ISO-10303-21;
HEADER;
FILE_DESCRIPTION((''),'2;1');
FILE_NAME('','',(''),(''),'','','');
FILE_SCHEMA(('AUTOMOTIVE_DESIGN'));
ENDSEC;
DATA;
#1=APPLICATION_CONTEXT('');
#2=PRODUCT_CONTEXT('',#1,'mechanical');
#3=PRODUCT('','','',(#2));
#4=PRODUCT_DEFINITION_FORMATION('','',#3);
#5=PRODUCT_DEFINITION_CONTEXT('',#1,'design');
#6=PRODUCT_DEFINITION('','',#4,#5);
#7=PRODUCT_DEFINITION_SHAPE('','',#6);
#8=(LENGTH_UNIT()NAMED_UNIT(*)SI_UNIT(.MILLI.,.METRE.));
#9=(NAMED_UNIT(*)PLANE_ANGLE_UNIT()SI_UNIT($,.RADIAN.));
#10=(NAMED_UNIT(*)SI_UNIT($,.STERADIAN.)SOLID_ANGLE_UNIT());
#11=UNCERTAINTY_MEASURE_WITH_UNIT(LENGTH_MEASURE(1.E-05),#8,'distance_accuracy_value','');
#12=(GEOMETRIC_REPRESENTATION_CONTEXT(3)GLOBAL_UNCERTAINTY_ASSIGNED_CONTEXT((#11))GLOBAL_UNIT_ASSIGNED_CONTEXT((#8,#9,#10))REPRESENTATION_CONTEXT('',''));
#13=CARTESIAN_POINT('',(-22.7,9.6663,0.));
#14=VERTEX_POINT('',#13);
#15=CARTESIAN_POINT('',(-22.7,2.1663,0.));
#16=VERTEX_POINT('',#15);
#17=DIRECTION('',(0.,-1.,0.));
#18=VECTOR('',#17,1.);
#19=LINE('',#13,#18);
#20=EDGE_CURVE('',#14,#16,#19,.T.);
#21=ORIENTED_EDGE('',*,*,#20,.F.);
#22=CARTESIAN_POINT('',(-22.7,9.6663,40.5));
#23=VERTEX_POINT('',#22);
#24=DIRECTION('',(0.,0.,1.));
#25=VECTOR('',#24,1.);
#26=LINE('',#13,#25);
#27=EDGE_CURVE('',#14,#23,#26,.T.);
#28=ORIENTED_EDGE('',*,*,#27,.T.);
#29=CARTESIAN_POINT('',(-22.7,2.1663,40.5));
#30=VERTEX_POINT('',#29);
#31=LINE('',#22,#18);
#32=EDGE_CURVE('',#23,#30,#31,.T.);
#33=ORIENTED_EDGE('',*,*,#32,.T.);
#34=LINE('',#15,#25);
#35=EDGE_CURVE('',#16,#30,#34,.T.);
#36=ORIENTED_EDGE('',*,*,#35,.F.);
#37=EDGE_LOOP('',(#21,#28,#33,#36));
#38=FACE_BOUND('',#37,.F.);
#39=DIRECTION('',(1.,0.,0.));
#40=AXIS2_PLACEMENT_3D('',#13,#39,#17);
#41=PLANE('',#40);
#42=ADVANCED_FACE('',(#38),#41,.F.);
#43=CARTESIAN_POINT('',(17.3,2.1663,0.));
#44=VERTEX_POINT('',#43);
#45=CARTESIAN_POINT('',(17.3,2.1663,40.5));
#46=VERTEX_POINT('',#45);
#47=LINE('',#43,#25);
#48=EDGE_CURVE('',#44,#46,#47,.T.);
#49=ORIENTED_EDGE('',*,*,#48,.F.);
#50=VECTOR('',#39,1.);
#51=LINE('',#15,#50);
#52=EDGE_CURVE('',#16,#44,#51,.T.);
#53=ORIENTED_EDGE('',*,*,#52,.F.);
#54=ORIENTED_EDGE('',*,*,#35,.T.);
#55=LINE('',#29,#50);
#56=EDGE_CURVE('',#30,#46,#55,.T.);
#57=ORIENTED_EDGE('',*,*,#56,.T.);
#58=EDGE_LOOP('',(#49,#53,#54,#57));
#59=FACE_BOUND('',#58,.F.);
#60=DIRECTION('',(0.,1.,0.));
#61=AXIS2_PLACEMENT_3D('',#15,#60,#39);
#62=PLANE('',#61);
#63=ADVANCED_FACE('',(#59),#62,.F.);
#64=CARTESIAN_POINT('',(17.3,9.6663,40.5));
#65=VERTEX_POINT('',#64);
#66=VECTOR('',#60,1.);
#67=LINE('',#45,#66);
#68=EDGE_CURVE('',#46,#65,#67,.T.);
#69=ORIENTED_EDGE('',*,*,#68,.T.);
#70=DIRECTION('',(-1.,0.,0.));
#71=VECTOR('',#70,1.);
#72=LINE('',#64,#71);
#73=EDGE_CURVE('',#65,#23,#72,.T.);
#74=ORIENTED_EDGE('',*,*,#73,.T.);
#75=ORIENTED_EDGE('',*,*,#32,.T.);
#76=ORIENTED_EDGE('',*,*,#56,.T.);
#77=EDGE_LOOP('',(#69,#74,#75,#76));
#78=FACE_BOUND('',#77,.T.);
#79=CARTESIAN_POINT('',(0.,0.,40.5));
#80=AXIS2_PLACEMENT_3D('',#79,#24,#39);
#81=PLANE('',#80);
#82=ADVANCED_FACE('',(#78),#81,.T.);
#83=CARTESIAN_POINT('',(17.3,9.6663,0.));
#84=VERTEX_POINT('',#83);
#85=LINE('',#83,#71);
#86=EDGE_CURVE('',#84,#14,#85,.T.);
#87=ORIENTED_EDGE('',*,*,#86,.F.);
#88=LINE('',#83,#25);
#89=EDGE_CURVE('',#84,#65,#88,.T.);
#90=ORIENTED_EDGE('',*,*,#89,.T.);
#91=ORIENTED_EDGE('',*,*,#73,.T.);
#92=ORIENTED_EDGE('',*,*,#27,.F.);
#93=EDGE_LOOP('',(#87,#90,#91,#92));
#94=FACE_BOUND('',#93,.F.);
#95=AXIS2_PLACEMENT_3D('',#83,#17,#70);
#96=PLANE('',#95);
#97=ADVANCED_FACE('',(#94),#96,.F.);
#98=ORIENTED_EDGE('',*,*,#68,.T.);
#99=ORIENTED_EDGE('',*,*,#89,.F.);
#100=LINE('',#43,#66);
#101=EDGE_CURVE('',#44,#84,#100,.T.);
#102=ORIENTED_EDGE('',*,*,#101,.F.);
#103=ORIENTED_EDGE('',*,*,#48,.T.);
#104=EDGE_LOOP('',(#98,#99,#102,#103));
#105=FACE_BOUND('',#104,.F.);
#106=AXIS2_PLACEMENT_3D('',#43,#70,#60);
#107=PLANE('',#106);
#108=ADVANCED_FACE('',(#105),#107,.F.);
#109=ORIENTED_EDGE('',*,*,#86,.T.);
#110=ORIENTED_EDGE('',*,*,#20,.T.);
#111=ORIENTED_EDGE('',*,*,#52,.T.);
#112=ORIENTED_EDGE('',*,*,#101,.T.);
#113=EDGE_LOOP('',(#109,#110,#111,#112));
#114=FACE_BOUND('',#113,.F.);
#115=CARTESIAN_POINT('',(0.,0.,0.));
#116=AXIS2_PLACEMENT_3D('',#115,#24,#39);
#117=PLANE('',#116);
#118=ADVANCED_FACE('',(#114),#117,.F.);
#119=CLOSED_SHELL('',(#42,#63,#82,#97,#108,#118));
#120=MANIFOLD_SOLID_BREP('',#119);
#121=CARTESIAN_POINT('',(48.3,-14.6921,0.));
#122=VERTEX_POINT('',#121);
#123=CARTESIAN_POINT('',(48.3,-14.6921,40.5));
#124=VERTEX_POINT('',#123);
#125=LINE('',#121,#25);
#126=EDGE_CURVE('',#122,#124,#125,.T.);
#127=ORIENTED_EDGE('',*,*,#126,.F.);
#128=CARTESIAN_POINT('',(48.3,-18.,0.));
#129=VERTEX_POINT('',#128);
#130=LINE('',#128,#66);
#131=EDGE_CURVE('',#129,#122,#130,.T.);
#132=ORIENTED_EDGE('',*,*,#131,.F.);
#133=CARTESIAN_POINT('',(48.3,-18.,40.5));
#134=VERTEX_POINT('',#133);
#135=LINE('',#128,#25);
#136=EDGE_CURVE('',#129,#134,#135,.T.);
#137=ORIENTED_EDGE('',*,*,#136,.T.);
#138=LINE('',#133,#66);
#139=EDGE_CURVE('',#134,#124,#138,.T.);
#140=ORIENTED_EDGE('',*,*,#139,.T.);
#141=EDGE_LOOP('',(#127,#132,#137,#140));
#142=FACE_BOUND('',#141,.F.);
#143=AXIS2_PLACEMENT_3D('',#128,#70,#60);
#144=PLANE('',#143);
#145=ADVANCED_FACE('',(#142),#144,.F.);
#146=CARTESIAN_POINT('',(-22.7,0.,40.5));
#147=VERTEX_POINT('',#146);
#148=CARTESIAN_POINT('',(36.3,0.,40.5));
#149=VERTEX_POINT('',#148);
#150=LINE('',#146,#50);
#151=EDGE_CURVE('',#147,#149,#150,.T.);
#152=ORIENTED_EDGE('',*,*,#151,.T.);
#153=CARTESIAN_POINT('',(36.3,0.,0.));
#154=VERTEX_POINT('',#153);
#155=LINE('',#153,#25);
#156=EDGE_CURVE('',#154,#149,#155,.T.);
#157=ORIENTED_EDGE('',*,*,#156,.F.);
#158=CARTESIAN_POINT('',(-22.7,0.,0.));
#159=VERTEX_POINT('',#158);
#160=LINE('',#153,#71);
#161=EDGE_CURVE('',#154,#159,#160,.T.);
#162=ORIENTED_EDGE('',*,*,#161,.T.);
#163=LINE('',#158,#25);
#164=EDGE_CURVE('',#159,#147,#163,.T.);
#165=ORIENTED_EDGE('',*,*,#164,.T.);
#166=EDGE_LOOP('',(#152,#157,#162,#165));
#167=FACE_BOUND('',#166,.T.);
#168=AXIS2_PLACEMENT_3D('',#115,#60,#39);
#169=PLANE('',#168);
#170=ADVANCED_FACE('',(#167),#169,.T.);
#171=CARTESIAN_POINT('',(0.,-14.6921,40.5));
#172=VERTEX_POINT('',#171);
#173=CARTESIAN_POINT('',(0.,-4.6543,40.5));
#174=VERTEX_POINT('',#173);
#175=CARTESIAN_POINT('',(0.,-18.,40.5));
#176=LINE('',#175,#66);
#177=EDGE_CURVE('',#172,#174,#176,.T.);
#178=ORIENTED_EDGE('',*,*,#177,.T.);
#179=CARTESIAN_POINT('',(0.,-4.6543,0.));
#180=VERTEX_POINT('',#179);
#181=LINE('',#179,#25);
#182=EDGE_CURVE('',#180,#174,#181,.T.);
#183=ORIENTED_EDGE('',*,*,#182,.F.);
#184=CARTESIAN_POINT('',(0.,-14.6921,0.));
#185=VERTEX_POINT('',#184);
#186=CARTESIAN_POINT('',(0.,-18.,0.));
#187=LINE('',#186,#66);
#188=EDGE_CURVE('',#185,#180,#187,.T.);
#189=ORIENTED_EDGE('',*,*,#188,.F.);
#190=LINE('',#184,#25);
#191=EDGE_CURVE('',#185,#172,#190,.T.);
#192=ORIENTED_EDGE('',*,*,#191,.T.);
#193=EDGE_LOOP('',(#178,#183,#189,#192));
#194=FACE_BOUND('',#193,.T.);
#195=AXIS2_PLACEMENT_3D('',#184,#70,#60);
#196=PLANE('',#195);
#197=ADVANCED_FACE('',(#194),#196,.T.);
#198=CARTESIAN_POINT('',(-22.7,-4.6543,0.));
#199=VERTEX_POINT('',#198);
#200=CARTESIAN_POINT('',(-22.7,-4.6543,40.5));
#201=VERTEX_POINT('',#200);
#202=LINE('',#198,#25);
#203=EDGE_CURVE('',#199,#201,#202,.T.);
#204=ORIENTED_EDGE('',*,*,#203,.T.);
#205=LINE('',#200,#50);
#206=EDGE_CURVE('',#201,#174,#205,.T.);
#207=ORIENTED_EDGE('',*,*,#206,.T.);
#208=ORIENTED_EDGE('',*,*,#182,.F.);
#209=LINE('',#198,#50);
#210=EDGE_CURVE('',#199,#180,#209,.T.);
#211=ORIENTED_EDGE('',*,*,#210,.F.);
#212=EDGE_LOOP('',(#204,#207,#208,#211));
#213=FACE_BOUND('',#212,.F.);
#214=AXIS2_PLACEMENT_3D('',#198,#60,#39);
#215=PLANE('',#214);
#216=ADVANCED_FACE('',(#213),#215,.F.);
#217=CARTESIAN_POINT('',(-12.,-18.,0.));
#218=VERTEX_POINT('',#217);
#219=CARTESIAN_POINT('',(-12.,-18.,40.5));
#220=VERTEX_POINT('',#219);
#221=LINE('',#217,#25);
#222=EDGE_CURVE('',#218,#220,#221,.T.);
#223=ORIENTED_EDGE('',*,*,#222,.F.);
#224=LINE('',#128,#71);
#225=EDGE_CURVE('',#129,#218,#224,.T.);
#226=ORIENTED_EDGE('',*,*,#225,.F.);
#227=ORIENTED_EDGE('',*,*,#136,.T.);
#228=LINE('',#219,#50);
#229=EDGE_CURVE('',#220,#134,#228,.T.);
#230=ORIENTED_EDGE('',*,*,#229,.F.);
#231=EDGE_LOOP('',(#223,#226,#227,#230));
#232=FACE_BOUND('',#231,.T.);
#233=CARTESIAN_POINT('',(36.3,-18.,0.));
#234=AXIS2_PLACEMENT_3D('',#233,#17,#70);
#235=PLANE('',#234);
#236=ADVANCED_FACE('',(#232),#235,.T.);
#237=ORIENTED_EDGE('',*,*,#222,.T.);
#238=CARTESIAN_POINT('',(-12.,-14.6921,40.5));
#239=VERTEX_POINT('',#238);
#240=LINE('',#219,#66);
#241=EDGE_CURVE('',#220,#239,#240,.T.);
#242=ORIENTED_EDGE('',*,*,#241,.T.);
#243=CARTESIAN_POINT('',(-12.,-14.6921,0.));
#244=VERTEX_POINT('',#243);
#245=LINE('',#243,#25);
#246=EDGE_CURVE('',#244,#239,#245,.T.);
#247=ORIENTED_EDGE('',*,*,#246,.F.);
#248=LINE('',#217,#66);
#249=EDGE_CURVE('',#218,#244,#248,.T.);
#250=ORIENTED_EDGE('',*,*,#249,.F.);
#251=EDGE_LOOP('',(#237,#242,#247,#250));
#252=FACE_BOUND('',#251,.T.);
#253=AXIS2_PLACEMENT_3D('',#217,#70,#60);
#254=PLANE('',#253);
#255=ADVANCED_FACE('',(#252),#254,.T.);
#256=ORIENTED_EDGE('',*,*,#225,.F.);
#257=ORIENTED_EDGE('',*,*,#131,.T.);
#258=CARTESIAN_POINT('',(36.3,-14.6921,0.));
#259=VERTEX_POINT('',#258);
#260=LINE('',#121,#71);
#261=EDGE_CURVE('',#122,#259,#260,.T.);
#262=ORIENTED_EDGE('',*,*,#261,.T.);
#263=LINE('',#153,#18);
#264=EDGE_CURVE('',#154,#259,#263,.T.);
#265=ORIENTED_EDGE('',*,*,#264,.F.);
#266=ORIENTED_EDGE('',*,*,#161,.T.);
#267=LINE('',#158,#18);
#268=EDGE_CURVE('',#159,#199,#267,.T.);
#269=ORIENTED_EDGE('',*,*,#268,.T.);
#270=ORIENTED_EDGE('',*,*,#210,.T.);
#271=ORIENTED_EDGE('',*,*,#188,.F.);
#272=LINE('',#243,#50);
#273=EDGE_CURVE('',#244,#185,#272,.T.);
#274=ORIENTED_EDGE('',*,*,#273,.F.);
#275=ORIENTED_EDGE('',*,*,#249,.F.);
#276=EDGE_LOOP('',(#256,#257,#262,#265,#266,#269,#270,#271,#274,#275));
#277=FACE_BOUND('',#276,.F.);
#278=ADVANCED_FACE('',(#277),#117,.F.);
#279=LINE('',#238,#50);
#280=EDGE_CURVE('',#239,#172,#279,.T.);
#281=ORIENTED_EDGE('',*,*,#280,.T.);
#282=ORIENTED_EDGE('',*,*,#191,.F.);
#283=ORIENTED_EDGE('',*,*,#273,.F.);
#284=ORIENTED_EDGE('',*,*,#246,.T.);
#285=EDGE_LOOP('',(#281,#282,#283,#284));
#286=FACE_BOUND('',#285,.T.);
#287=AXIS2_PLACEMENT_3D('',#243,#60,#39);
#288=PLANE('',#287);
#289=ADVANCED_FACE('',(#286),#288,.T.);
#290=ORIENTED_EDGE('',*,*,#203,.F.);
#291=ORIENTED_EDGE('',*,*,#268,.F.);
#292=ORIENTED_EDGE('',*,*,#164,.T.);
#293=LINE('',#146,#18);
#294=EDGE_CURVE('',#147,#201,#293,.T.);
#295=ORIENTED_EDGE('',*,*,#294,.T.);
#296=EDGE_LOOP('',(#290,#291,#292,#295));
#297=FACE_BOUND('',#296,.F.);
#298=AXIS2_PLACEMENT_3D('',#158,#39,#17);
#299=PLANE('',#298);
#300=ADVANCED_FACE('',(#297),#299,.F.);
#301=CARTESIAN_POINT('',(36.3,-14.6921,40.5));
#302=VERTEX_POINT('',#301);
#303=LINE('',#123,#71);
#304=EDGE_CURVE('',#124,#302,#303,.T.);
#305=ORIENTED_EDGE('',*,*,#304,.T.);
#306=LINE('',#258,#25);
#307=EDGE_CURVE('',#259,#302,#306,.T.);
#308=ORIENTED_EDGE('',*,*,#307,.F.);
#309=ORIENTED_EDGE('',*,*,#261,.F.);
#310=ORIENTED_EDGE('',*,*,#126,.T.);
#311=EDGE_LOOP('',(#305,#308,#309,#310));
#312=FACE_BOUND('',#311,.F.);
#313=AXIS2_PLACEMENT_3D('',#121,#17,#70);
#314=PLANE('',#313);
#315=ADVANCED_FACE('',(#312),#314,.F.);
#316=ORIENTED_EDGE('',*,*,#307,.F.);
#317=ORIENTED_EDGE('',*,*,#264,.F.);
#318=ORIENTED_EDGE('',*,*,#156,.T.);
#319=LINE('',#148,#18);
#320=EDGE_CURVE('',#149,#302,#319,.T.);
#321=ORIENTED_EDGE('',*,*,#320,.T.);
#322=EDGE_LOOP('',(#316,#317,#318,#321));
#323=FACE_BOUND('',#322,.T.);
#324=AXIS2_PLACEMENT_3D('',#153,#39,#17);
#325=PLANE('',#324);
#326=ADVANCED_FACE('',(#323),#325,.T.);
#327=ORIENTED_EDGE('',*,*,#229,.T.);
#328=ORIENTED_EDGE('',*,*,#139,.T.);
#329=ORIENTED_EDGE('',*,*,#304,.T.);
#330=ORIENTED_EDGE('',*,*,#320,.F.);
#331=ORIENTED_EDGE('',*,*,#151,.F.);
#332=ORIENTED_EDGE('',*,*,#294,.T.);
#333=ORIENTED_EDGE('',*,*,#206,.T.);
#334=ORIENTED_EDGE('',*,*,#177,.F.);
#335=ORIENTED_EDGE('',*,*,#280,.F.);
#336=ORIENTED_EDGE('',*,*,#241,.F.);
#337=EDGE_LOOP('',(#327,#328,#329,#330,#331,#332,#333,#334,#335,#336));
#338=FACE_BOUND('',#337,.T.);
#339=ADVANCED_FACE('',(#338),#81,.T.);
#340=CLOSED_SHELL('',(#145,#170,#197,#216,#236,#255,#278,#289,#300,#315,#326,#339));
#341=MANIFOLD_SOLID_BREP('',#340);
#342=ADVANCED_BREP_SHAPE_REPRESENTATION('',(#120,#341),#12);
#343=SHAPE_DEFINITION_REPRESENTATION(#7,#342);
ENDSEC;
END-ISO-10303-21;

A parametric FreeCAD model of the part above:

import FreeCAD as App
import Part
import Sketcher
Q = App.Units.Quantity


def add_polygon(sketch, points):
    """Adds a closed chain of lines whose ends are joined by coincident constraints."""
    first, n = sketch.GeometryCount, len(points)
    for a, b in zip(points, points[1:] + points[:1]):
        sketch.addGeometry(Part.LineSegment(App.Vector(*a, 0), App.Vector(*b, 0)), False)
    for i in range(n):
        sketch.addConstraint(Sketcher.Constraint("Coincident", first + i, 2, first + (i + 1) % n, 1))

doc = App.newDocument("Part")
params = doc.addObject("Spreadsheet::Sheet", "Params")
for row, (alias, value) in enumerate([
    ("sketch1_width", "59 mm"),
    ("sketch1_width2", "40 mm"),
    ("sketch1_height", "7.5 mm"),
    ("pad1_length", "40.5 mm"),
], start=1):
    params.set(f"A{row}", alias)
    params.set(f"B{row}", "=" + value)
    params.setAlias(f"B{row}", alias)

body = doc.addObject("PartDesign::Body", "Body")
body.AllowCompound = True

# Sketch on XY plane
sketch1 = body.newObject("Sketcher::SketchObject", "Sketch")
sketch1.AttachmentSupport = (doc.getObject("XY_Plane"), [""])
sketch1.MapMode = "FlatFace"
add_polygon(sketch1, [(36.3, 0), (-22.7, 0), (-22.7, -4.7), (0, -4.7), (0, -14.7), (-12, -14.7), (-12, -18), (48.3, -18), (48.3, -14.7), (36.3, -14.7)])  # lines 0-9
add_polygon(sketch1, [(-22.7, 9.7), (-22.7, 2.2), (17.3, 2.2), (17.3, 9.7)])  # lines 10-13
sketch1.addConstraint([
    Sketcher.Constraint("Horizontal", 0),
    Sketcher.Constraint("Vertical", 1),
    Sketcher.Constraint("Horizontal", 2),
    Sketcher.Constraint("Vertical", 3),
    Sketcher.Constraint("Horizontal", 4),
    Sketcher.Constraint("Vertical", 5),
    Sketcher.Constraint("Horizontal", 6),
    Sketcher.Constraint("Vertical", 7),
    Sketcher.Constraint("Horizontal", 8),
    Sketcher.Constraint("Vertical", 9),
    Sketcher.Constraint("Vertical", 10),
    Sketcher.Constraint("Horizontal", 11),
    Sketcher.Constraint("Vertical", 12),
    Sketcher.Constraint("Horizontal", 13),
    Sketcher.Constraint("PointOnObject", 0, 2, -1),
    Sketcher.Constraint("PointOnObject", 2, 2, -2),
    Sketcher.Constraint("Horizontal", 4, 2, 7, 2),
    Sketcher.Constraint("Vertical", 1, 2, 10, 2),
    Sketcher.Constraint("Equal", 4, 8),
    Sketcher.Constraint("DistanceX", 0, 2, 0, 1, Q("59 mm")),
    Sketcher.Constraint("DistanceX", 11, 1, 11, 2, Q("40 mm")),
    Sketcher.Constraint("DistanceY", 10, 2, 10, 1, Q("7.5 mm")),
    Sketcher.Constraint("DistanceY", 5, 2, -1, 1, Q("18 mm")),
    Sketcher.Constraint("DistanceX", 1, 2, 6, 2, Q("71 mm")),
    Sketcher.Constraint("DistanceX", -1, 1, 8, 2, Q("36.3 mm")),
    Sketcher.Constraint("DistanceY", 5, 2, 5, 1, Q("3.308 mm")),
    Sketcher.Constraint("DistanceY", 1, 2, 1, 1, Q("4.6543 mm")),
    Sketcher.Constraint("DistanceY", -1, 1, 10, 2, Q("2.1663 mm")),
])
sketch1.setExpression("Constraints[33]", "Params.sketch1_width")
sketch1.setExpression("Constraints[34]", "Params.sketch1_width2")
sketch1.setExpression("Constraints[35]", "Params.sketch1_height")
pad1 = body.newObject("PartDesign::Pad", "Pad")
pad1.Profile = sketch1
pad1.setExpression("Length", "Params.pad1_length")

doc.recompute()
